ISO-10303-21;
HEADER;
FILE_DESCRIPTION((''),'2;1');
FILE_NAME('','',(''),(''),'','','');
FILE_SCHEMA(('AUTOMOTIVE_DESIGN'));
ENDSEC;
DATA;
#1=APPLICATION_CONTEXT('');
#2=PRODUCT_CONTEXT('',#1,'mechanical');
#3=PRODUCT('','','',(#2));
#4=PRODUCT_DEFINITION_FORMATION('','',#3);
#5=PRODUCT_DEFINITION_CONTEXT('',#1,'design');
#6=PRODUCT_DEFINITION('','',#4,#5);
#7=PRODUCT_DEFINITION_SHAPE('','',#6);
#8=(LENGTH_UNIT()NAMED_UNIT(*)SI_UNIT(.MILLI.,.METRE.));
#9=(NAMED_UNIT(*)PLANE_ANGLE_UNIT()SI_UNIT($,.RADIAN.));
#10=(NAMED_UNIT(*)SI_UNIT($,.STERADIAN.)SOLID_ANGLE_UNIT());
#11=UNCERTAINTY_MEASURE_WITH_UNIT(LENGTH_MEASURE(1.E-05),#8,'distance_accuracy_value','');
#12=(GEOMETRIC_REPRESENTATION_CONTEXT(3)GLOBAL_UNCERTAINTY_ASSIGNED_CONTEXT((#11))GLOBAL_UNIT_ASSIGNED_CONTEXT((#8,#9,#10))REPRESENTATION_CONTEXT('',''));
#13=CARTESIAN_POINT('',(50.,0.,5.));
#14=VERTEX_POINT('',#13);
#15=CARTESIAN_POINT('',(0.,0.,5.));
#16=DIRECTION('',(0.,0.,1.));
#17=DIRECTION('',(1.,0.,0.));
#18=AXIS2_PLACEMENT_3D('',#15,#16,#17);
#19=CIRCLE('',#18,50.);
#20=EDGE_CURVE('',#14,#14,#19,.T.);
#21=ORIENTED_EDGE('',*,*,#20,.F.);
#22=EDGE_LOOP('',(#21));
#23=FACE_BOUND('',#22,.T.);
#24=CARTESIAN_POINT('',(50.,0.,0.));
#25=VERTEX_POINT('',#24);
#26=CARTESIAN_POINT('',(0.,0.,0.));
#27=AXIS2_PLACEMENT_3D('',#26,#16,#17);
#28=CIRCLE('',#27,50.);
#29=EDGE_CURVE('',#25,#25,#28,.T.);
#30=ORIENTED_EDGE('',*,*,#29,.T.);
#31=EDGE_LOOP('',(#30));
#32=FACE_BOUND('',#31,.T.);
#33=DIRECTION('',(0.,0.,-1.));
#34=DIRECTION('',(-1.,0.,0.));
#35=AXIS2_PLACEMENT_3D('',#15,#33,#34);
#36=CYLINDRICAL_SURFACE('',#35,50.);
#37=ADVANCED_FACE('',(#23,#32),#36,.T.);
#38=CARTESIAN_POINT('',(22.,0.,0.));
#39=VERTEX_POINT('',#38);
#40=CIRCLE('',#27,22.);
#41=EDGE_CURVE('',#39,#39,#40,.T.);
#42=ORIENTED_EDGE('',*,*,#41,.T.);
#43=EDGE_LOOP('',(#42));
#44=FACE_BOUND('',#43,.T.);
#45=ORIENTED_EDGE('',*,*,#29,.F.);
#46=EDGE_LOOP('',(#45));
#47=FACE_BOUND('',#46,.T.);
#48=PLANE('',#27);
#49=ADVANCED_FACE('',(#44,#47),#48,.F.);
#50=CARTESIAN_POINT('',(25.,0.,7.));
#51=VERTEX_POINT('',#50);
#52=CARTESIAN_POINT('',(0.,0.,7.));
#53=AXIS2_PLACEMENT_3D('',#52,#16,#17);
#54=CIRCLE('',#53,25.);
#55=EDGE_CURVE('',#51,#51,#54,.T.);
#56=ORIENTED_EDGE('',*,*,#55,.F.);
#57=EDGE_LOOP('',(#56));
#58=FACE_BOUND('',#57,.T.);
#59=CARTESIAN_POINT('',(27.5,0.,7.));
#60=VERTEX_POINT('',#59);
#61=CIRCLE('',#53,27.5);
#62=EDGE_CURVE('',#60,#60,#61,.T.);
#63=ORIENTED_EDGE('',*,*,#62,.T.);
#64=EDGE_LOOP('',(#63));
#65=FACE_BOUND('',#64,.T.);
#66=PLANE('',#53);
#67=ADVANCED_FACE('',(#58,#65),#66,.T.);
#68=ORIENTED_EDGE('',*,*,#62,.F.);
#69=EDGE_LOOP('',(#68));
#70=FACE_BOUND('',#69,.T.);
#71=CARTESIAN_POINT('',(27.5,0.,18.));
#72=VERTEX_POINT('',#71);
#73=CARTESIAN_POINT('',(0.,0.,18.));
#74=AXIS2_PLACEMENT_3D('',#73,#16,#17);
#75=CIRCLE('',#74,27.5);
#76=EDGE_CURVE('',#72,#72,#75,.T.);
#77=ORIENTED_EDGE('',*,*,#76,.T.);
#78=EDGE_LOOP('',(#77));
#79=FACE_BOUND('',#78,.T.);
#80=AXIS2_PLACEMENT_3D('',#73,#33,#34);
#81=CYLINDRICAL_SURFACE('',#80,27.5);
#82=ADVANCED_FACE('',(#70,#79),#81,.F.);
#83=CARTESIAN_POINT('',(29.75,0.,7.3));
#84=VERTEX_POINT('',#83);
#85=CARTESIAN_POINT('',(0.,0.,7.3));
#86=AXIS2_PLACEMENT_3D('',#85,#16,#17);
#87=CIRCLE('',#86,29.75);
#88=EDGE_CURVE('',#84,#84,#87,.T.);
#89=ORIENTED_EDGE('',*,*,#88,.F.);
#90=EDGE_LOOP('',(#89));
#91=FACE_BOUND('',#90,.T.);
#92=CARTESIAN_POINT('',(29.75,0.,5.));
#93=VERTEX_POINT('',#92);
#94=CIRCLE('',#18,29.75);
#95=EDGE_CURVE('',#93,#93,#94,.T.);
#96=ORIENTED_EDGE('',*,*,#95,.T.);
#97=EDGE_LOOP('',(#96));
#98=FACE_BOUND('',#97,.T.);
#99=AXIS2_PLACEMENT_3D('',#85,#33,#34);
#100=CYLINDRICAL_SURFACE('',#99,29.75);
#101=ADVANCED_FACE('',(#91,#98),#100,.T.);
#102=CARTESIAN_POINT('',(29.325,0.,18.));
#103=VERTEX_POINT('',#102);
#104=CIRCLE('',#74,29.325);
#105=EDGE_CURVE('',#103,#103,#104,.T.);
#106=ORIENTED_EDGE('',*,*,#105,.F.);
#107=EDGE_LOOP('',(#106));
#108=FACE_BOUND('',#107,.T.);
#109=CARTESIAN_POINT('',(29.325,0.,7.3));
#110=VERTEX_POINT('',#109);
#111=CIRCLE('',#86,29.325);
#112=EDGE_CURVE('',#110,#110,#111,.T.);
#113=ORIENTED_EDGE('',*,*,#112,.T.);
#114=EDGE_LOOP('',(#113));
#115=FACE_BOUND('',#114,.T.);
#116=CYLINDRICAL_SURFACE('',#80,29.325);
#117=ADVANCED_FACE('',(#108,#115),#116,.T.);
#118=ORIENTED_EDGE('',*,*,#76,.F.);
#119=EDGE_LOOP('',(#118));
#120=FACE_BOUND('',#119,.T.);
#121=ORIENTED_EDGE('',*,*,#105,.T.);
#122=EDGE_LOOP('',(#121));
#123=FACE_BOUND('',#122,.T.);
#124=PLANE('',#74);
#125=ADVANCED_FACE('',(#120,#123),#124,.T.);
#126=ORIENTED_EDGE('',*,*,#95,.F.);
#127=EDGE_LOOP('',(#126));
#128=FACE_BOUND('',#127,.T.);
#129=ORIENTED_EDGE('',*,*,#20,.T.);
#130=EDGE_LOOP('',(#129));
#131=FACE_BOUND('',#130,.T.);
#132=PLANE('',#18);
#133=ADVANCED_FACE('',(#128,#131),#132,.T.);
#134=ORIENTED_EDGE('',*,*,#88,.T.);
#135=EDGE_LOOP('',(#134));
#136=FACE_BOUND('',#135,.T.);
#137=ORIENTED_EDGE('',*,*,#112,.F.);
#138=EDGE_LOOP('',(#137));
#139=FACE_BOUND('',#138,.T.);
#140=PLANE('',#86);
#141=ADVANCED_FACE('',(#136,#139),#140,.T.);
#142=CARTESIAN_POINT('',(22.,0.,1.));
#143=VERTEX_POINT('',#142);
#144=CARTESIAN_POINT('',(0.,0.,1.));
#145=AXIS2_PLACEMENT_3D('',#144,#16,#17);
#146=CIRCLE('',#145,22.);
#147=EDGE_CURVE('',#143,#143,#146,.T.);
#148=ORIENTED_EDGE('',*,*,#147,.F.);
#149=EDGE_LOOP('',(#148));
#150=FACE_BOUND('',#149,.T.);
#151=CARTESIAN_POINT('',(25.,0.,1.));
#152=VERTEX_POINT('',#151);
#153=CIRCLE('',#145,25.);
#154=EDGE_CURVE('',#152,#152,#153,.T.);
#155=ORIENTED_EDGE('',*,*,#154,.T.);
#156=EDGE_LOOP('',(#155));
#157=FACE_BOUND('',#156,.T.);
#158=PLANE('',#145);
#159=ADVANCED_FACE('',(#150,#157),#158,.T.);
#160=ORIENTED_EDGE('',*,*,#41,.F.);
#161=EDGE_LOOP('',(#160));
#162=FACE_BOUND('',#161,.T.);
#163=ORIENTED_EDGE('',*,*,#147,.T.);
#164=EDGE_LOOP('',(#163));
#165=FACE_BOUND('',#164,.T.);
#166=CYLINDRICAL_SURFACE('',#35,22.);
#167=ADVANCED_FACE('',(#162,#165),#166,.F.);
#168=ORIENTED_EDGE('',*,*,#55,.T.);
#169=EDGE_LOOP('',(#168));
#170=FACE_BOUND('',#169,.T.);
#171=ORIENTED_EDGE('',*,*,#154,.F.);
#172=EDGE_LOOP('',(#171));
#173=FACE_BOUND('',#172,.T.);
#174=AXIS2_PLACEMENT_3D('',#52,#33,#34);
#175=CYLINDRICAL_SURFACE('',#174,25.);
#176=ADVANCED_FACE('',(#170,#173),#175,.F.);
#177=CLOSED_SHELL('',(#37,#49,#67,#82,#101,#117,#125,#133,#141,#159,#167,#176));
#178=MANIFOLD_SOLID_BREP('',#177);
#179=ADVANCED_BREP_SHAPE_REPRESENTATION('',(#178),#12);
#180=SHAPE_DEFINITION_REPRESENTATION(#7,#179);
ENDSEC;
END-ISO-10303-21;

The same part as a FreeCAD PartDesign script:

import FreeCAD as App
import Part
import Sketcher

V = App.Vector
Q = App.Units.Quantity

doc = App.newDocument("Part")
params = doc.addObject("Spreadsheet::Sheet", "Params")
for row, (alias, value) in enumerate([
    ("sketch1_diameter", "100 mm"),
    ("sketch1_diameter2", "44 mm"),
    ("pad1_length", "5 mm"),
    ("sketch2_diameter", "55 mm"),
    ("sketch2_diameter2", "58.65 mm"),
    ("pad2_length", "18 mm"),
    ("sketch3_diameter", "59.5 mm"),
    ("sketch3_diameter2", "58.65 mm"),
    ("pad3_length", "2.3 mm"),
    ("sketch4_diameter", "55 mm"),
    ("sketch4_diameter2", "50 mm"),
    ("pad4_length", "2 mm"),
    ("sketch5_diameter", "50 mm"),
    ("sketch5_diameter2", "44 mm"),
    ("pocket1_length", "4 mm"),
], start=1):
    params.set(f"A{row}", alias)
    params.set(f"B{row}", "=" + value)
    params.setAlias(f"B{row}", alias)

body = doc.addObject("PartDesign::Body", "Body")

# Sketch on XY plane
sketch1 = body.newObject("Sketcher::SketchObject", "Sketch")
sketch1.AttachmentSupport = (doc.getObject("XY_Plane"), [""])
sketch1.MapMode = "FlatFace"
sketch1.addGeometry([
    Part.Circle(V(0, 0, 0), V(0, 0, 1), 50),
    Part.Circle(V(0, 0, 0), V(0, 0, 1), 22),
], False)
sketch1.addConstraint([
    Sketcher.Constraint("Coincident", 0, 3, -1, 1),
    Sketcher.Constraint("Coincident", 1, 3, -1, 1),
    Sketcher.Constraint("Diameter", 0, Q("100 mm")),
    Sketcher.Constraint("Diameter", 1, Q("44 mm")),
])
sketch1.setExpression("Constraints[2]", "Params.sketch1_diameter")
sketch1.setExpression("Constraints[3]", "Params.sketch1_diameter2")
pad1 = body.newObject("PartDesign::Pad", "Pad")
pad1.Profile = sketch1
pad1.setExpression("Length", "Params.pad1_length")

# Sketch on XY plane
sketch2 = body.newObject("Sketcher::SketchObject", "Sketch001")
sketch2.AttachmentSupport = (doc.getObject("XY_Plane"), [""])
sketch2.MapMode = "FlatFace"
sketch2.addGeometry([
    Part.Circle(V(0, 0, 0), V(0, 0, 1), 29.325),
    Part.Circle(V(0, 0, 0), V(0, 0, 1), 27.5),
], False)
sketch2.addConstraint([
    Sketcher.Constraint("Coincident", 0, 3, -1, 1),
    Sketcher.Constraint("Coincident", 1, 3, -1, 1),
    Sketcher.Constraint("Diameter", 1, Q("55 mm")),
    Sketcher.Constraint("Diameter", 0, Q("58.65 mm")),
])
sketch2.setExpression("Constraints[2]", "Params.sketch2_diameter")
sketch2.setExpression("Constraints[3]", "Params.sketch2_diameter2")
pad2 = body.newObject("PartDesign::Pad", "Pad001")
pad2.Profile = sketch2
pad2.setExpression("Length", "Params.pad2_length")

# Sketch on XY plane
sketch3 = body.newObject("Sketcher::SketchObject", "Sketch002")
sketch3.AttachmentSupport = (doc.getObject("XY_Plane"), [""])
sketch3.MapMode = "FlatFace"
sketch3.AttachmentOffset = App.Placement(V(0, 0, 5), App.Rotation())
sketch3.addGeometry([
    Part.Circle(V(0, 0, 0), V(0, 0, 1), 29.75),
    Part.Circle(V(0, 0, 0), V(0, 0, 1), 29.325),
], False)
sketch3.addConstraint([
    Sketcher.Constraint("Coincident", 0, 3, -1, 1),
    Sketcher.Constraint("Coincident", 1, 3, -1, 1),
    Sketcher.Constraint("Diameter", 0, Q("59.5 mm")),
    Sketcher.Constraint("Diameter", 1, Q("58.65 mm")),
])
sketch3.setExpression("Constraints[2]", "Params.sketch3_diameter")
sketch3.setExpression("Constraints[3]", "Params.sketch3_diameter2")
pad3 = body.newObject("PartDesign::Pad", "Pad002")
pad3.Profile = sketch3
pad3.setExpression("Length", "Params.pad3_length")

# Sketch on XY plane
sketch4 = body.newObject("Sketcher::SketchObject", "Sketch003")
sketch4.AttachmentSupport = (doc.getObject("XY_Plane"), [""])
sketch4.MapMode = "FlatFace"
sketch4.AttachmentOffset = App.Placement(V(0, 0, 5), App.Rotation())
sketch4.addGeometry([
    Part.Circle(V(0, 0, 0), V(0, 0, 1), 27.5),
    Part.Circle(V(0, 0, 0), V(0, 0, 1), 25),
], False)
sketch4.addConstraint([
    Sketcher.Constraint("Coincident", 0, 3, -1, 1),
    Sketcher.Constraint("Coincident", 1, 3, -1, 1),
    Sketcher.Constraint("Diameter", 0, Q("55 mm")),
    Sketcher.Constraint("Diameter", 1, Q("50 mm")),
])
sketch4.setExpression("Constraints[2]", "Params.sketch4_diameter")
sketch4.setExpression("Constraints[3]", "Params.sketch4_diameter2")
pad4 = body.newObject("PartDesign::Pad", "Pad003")
pad4.Profile = sketch4
pad4.setExpression("Length", "Params.pad4_length")

# Sketch on XY plane
sketch5 = body.newObject("Sketcher::SketchObject", "Sketch004")
sketch5.AttachmentSupport = (doc.getObject("XY_Plane"), [""])
sketch5.MapMode = "FlatFace"
sketch5.AttachmentOffset = App.Placement(V(0, 0, 1), App.Rotation())
sketch5.addGeometry([
    Part.Circle(V(0, 0, 0), V(0, 0, 1), 25),
    Part.Circle(V(0, 0, 0), V(0, 0, 1), 22),
], False)
sketch5.addConstraint([
    Sketcher.Constraint("Coincident", 0, 3, -1, 1),
    Sketcher.Constraint("Coincident", 1, 3, -1, 1),
    Sketcher.Constraint("Diameter", 0, Q("50 mm")),
    Sketcher.Constraint("Diameter", 1, Q("44 mm")),
])
sketch5.setExpression("Constraints[2]", "Params.sketch5_diameter")
sketch5.setExpression("Constraints[3]", "Params.sketch5_diameter2")
pocket1 = body.newObject("PartDesign::Pocket", "Pocket")
pocket1.Profile = sketch5
pocket1.setExpression("Length", "Params.pocket1_length")
pocket1.Reversed = True

doc.recompute()
